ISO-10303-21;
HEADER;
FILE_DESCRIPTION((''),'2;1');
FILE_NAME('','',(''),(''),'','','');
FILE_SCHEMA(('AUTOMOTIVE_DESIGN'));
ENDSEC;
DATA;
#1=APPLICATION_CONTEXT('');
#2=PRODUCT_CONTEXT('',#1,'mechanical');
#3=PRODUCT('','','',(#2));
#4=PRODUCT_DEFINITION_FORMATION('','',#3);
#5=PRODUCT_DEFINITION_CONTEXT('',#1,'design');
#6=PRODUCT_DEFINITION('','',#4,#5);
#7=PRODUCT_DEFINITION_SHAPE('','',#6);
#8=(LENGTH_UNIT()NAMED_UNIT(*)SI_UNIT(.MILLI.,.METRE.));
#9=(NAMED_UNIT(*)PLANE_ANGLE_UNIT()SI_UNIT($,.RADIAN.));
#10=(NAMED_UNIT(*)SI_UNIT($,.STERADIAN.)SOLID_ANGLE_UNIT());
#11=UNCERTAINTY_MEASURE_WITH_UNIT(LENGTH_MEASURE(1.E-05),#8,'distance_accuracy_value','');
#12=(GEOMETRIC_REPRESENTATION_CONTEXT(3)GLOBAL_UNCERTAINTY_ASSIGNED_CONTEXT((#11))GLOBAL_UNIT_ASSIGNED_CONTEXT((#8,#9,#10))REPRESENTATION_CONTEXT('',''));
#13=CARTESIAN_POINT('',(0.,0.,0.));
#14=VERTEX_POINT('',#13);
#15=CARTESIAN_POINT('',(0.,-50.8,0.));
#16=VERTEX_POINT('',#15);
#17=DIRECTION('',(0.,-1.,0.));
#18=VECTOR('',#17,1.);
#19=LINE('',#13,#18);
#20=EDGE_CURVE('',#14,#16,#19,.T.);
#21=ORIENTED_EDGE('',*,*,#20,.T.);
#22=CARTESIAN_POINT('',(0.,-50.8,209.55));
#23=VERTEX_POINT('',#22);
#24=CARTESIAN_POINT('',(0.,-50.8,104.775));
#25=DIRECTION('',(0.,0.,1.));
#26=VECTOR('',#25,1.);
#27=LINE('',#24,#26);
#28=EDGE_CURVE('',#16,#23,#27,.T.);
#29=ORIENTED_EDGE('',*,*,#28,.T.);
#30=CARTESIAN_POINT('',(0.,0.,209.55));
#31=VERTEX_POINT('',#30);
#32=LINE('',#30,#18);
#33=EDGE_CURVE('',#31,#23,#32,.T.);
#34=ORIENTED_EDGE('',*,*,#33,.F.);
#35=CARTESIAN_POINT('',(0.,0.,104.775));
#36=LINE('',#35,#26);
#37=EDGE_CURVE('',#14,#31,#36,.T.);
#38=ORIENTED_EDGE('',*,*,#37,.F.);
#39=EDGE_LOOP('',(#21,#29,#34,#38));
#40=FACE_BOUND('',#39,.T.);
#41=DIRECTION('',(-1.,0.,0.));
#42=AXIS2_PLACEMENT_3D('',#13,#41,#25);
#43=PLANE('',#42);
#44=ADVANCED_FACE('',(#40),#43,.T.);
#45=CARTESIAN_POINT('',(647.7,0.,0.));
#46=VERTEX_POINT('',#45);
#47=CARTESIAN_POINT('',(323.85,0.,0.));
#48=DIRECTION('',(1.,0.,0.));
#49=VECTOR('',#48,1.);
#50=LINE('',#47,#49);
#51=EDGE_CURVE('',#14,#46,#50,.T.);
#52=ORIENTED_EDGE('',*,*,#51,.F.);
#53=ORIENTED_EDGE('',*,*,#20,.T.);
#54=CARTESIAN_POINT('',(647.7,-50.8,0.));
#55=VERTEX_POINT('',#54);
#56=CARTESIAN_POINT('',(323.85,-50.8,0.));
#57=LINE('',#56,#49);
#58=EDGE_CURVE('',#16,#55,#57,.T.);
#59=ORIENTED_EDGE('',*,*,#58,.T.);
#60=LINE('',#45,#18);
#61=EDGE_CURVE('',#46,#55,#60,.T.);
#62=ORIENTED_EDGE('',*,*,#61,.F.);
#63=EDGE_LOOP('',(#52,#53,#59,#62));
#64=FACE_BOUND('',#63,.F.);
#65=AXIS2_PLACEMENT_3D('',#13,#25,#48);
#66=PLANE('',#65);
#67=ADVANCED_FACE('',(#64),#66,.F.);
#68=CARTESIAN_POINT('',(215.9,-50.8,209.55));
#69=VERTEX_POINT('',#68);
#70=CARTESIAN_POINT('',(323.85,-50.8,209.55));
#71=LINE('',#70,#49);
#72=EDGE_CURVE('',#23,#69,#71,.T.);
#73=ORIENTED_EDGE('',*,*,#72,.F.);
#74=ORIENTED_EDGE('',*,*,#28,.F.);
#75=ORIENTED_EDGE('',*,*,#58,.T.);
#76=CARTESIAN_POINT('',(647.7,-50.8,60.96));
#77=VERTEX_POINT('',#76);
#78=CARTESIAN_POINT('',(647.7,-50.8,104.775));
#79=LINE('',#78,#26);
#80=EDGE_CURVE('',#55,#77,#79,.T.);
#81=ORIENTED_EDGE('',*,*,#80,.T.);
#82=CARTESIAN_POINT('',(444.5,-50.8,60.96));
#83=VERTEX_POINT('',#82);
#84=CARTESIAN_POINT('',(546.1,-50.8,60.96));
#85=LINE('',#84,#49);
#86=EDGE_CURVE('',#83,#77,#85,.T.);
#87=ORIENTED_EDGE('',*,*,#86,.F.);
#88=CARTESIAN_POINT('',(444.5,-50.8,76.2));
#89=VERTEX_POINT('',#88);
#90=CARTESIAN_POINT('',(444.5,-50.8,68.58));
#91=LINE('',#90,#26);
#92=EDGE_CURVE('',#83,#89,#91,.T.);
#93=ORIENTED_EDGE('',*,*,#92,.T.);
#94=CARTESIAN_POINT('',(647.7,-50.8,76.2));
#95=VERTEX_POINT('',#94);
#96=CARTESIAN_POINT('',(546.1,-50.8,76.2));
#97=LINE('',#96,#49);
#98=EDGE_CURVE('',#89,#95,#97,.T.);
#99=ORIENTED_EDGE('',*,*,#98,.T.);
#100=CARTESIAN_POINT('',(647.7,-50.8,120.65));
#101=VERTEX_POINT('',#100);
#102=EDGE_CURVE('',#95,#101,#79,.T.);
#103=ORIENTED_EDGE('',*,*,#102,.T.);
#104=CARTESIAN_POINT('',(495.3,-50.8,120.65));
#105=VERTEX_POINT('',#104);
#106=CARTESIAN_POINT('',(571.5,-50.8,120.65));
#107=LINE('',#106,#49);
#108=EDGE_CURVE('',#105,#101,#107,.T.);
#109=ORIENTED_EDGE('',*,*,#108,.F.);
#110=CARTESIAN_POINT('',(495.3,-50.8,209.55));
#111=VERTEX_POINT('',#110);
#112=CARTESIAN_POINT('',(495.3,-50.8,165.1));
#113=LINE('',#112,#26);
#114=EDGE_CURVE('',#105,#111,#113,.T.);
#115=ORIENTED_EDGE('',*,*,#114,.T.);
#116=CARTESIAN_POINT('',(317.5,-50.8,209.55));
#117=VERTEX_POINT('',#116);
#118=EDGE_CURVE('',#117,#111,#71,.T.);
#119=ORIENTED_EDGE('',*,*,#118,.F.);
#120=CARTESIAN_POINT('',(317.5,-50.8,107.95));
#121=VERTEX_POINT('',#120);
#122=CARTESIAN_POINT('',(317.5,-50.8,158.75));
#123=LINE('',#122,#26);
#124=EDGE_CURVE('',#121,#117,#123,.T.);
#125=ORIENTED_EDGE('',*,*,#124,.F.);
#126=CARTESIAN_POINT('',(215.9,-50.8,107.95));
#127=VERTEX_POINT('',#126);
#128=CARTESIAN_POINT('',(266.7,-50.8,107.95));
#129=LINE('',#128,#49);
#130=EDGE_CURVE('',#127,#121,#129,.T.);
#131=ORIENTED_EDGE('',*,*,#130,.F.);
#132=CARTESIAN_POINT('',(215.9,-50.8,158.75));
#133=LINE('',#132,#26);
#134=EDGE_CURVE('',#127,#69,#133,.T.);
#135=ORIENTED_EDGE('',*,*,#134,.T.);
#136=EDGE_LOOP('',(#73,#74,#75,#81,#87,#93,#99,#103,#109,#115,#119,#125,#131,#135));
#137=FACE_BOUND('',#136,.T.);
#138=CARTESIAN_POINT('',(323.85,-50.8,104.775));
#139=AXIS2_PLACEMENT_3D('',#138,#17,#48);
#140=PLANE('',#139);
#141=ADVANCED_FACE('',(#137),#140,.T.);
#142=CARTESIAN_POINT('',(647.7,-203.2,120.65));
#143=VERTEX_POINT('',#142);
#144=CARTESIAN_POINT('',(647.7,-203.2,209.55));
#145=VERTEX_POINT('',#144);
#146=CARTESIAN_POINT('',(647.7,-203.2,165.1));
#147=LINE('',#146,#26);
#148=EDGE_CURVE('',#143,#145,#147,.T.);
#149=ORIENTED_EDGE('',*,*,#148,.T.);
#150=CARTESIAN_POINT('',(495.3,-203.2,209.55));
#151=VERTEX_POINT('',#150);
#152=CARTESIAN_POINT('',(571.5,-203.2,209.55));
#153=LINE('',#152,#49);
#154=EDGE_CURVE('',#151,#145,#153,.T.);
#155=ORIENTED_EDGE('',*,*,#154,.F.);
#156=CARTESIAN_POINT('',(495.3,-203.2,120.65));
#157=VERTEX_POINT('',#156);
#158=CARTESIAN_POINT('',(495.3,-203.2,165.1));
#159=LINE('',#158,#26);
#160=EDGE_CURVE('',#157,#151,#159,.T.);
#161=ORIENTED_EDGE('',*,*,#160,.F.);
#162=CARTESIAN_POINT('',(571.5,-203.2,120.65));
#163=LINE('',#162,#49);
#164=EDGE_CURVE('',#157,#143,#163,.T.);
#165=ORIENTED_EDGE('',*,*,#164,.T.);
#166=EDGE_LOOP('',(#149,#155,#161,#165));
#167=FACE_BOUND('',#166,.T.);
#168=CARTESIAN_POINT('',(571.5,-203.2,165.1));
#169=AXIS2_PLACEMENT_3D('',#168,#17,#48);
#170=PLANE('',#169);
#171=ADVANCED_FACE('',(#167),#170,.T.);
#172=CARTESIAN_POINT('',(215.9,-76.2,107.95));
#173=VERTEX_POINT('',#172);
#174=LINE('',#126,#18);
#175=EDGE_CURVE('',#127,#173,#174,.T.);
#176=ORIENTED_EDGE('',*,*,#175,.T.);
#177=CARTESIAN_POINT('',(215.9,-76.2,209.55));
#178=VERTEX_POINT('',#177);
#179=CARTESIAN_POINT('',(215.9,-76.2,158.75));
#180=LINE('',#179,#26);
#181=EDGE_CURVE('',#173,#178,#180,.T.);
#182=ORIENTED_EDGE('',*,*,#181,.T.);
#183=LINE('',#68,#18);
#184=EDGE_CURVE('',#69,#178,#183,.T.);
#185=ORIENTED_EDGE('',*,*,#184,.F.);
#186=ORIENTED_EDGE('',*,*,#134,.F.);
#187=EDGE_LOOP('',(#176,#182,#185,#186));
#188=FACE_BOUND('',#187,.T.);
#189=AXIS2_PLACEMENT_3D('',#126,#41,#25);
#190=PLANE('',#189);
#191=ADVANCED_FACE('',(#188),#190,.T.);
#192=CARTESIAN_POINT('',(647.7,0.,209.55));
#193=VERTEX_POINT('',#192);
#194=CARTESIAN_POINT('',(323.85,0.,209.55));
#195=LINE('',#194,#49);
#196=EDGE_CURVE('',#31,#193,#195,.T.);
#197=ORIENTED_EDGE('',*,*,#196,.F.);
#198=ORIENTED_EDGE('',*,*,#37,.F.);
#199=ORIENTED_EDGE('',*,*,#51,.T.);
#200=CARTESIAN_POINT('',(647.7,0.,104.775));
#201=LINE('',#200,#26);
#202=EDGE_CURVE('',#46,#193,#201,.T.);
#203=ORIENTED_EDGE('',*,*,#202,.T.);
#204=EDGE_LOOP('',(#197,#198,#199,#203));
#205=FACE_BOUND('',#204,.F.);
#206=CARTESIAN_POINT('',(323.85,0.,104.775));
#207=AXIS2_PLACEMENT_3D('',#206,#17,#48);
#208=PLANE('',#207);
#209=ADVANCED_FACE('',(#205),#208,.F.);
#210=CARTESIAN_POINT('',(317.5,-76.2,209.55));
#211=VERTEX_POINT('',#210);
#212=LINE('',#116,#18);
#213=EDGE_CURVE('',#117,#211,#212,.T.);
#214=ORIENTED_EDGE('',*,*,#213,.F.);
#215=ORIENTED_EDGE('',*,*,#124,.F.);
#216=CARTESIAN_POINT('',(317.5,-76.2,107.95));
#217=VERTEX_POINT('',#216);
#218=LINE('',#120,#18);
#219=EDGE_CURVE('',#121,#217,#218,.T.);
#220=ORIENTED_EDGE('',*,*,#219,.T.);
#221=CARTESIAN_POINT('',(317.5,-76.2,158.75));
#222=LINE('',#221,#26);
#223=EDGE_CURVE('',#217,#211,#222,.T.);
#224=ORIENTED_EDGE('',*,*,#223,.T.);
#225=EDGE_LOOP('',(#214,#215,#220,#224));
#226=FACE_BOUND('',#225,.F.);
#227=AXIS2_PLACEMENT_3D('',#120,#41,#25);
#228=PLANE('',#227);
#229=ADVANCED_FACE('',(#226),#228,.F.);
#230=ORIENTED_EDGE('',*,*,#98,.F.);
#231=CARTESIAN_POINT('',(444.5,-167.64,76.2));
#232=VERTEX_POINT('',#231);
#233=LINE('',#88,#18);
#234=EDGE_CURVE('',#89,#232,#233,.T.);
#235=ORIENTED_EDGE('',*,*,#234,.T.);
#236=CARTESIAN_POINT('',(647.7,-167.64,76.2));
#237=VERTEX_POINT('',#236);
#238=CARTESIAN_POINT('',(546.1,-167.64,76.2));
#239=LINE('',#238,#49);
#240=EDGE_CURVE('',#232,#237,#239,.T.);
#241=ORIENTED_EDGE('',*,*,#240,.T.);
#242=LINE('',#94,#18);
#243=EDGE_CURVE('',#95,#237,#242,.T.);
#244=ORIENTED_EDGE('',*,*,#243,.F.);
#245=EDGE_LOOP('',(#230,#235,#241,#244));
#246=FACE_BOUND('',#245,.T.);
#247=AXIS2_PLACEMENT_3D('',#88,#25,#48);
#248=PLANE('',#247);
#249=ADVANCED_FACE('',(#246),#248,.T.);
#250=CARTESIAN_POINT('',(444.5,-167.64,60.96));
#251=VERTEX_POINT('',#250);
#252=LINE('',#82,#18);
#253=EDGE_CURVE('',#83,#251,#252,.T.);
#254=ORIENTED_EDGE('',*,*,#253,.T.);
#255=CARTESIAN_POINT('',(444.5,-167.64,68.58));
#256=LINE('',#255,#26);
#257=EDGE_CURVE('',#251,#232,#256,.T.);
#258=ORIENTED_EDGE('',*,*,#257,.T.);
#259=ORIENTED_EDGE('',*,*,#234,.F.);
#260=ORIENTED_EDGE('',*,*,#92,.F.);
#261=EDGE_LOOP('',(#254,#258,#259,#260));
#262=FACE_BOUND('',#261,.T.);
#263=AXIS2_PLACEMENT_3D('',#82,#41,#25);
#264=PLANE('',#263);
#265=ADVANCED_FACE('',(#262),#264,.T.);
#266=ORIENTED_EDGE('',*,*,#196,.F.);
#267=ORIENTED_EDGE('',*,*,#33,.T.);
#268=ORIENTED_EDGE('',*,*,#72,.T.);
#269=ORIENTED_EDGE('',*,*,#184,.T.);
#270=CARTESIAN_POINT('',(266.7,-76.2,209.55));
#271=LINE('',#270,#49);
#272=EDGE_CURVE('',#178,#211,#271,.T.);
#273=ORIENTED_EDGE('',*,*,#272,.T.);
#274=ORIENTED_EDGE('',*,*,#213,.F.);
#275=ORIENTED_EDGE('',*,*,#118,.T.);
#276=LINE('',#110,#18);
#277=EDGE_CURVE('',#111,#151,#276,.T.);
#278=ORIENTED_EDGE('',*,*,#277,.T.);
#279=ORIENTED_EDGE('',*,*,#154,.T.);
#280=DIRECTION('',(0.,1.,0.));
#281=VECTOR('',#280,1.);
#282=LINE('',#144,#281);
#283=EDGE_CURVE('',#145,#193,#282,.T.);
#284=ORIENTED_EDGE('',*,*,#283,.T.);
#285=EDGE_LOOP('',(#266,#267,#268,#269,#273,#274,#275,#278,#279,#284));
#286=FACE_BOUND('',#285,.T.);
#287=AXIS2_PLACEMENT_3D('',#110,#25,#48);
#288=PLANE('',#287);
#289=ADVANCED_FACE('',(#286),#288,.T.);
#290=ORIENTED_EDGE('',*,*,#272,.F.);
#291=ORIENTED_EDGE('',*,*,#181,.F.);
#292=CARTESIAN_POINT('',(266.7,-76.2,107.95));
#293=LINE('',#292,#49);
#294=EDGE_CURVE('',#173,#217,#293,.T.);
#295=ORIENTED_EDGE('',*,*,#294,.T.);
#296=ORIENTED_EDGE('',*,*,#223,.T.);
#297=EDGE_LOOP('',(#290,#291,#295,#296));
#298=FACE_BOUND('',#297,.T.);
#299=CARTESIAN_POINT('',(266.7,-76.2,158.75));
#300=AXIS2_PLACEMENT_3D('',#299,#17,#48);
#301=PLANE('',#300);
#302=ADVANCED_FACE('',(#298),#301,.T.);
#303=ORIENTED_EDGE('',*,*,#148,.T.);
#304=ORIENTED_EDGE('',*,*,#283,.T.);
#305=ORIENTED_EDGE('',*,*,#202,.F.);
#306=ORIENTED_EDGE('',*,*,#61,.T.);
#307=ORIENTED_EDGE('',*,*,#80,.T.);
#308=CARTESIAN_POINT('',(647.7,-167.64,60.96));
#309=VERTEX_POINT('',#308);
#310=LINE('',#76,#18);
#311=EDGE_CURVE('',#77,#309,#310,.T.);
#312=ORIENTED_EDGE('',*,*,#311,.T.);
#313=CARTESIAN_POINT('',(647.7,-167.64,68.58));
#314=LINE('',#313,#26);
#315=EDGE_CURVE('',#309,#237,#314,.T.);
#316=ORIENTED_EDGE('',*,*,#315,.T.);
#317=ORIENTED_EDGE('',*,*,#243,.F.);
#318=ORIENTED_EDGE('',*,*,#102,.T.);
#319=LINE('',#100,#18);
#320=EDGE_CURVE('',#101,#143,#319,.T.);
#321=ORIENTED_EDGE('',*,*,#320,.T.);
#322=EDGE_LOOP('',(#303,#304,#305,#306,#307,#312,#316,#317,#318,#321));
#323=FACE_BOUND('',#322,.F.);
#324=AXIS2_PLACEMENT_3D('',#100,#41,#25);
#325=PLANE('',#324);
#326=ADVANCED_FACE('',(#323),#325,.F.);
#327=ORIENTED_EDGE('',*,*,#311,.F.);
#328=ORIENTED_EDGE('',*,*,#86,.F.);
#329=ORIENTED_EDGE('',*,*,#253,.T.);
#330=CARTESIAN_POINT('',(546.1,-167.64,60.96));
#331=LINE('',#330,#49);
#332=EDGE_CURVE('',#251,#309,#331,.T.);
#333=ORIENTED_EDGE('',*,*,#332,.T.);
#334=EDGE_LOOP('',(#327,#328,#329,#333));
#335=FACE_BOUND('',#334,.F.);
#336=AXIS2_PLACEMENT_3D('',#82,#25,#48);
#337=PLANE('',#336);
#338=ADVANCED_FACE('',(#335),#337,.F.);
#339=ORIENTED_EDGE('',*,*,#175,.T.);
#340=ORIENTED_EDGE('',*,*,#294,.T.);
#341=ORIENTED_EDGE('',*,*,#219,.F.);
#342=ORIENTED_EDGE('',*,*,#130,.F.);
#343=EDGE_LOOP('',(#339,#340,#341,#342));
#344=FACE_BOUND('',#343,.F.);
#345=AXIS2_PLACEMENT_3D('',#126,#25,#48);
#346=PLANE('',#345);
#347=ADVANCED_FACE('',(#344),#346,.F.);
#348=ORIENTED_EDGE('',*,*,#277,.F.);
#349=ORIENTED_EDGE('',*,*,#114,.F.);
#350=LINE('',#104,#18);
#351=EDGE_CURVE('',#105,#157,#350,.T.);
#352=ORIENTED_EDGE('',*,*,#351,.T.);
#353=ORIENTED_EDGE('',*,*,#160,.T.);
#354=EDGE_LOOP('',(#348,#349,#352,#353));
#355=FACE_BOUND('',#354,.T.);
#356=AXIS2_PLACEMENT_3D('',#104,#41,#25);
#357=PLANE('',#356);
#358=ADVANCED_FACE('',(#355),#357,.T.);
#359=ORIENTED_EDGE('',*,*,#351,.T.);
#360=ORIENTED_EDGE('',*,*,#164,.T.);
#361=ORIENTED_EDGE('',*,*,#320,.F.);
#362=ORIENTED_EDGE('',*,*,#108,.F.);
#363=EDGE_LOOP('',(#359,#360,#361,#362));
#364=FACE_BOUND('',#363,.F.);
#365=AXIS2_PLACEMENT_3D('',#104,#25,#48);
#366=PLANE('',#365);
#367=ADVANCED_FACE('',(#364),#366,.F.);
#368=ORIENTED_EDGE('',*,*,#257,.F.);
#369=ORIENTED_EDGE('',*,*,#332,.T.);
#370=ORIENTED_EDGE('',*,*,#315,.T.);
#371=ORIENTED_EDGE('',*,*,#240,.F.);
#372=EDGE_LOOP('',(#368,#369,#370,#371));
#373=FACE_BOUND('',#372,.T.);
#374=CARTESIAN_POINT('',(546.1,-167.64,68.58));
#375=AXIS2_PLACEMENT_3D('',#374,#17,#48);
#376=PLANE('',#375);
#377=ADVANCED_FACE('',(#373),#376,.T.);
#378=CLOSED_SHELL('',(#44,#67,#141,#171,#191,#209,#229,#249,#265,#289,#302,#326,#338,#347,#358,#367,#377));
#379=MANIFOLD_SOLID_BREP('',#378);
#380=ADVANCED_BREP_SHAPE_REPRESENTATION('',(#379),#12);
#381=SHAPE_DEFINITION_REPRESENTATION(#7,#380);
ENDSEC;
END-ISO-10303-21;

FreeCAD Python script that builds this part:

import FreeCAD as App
import Part
import Sketcher
Q = App.Units.Quantity


def add_polygon(sketch, points):
    """Adds a closed chain of lines whose ends are joined by coincident constraints."""
    first, n = sketch.GeometryCount, len(points)
    for a, b in zip(points, points[1:] + points[:1]):
        sketch.addGeometry(Part.LineSegment(App.Vector(*a, 0), App.Vector(*b, 0)), False)
    for i in range(n):
        sketch.addConstraint(Sketcher.Constraint("Coincident", first + i, 2, first + (i + 1) % n, 1))

doc = App.newDocument("Part")
body = doc.addObject("PartDesign::Body", "Body")

sketch1 = body.newObject("Sketcher::SketchObject", "Sketch")
sketch1.AttachmentSupport = (doc.getObject("XZ_Plane"), [""])
sketch1.MapMode = "FlatFace"
add_polygon(sketch1, [(0, 210), (0, 0), (648, 0), (648, 210)])
sketch1.addConstraint([
    Sketcher.Constraint("Vertical", 0),
    Sketcher.Constraint("Horizontal", 1),
    Sketcher.Constraint("Vertical", 2),
    Sketcher.Constraint("Horizontal", 3),
    Sketcher.Constraint("Coincident", 0, 2, -1, 1),
    Sketcher.Constraint("DistanceX", 1, 1, 1, 2, Q("25.5 in")),
    Sketcher.Constraint("DistanceY", 0, 2, 0, 1, Q("8.25 in")),
])
pad1 = body.newObject("PartDesign::Pad", "Pad")
pad1.Profile = sketch1
pad1.Length = Q("2 in")

sketch2 = body.newObject("Sketcher::SketchObject", "Sketch001")
sketch2.AttachmentSupport = (doc.getObject("XZ_Plane"), [""])
sketch2.MapMode = "FlatFace"
sketch2.AttachmentOffset = App.Placement(App.Vector(0, 0, 2 * 25.4), App.Rotation())
add_polygon(sketch2, [(216, 210), (216, 108), (318, 108), (318, 210)])
sketch2.addConstraint([
    Sketcher.Constraint("Vertical", 0),
    Sketcher.Constraint("Horizontal", 1),
    Sketcher.Constraint("Vertical", 2),
    Sketcher.Constraint("Horizontal", 3),
    Sketcher.Constraint("Equal", 3, 0),
    Sketcher.Constraint("DistanceX", 1, 1, 1, 2, Q("4 in")),
    Sketcher.Constraint("DistanceX", -1, 1, 0, 2, Q("8.5 in")),
    Sketcher.Constraint("DistanceY", -1, 1, 0, 2, Q("4.25 in")),
])
pad2 = body.newObject("PartDesign::Pad", "Pad001")
pad2.Profile = sketch2
pad2.Length = Q("1 in")

sketch3 = body.newObject("Sketcher::SketchObject", "Sketch002")
sketch3.AttachmentSupport = (doc.getObject("XZ_Plane"), [""])
sketch3.MapMode = "FlatFace"
sketch3.AttachmentOffset = App.Placement(App.Vector(0, 0, 2 * 25.4), App.Rotation())
add_polygon(sketch3, [(444, 76), (444, 61), (648, 61), (648, 76)])
sketch3.addConstraint([
    Sketcher.Constraint("Vertical", 0),
    Sketcher.Constraint("Horizontal", 1),
    Sketcher.Constraint("Vertical", 2),
    Sketcher.Constraint("Horizontal", 3),
    Sketcher.Constraint("DistanceX", 1, 1, 1, 2, Q("8 in")),
    Sketcher.Constraint("DistanceY", 0, 2, 0, 1, Q("0.6 in")),
    Sketcher.Constraint("DistanceY", -1, 1, 2, 2, Q("3 in")),
    Sketcher.Constraint("DistanceX", -1, 1, 0, 2, Q("17.5 in")),
])
pad3 = body.newObject("PartDesign::Pad", "Pad002")
pad3.Profile = sketch3
pad3.Length = Q("4.6 in")

sketch4 = body.newObject("Sketcher::SketchObject", "Sketch003")
sketch4.AttachmentSupport = (doc.getObject("XZ_Plane"), [""])
sketch4.MapMode = "FlatFace"
sketch4.AttachmentOffset = App.Placement(App.Vector(0, 0, 2 * 25.4), App.Rotation())
add_polygon(sketch4, [(495, 210), (495, 121), (648, 121), (648, 210)])
sketch4.addConstraint([
    Sketcher.Constraint("Vertical", 0),
    Sketcher.Constraint("Horizontal", 1),
    Sketcher.Constraint("Vertical", 2),
    Sketcher.Constraint("Horizontal", 3),
    Sketcher.Constraint("DistanceX", 1, 1, 1, 2, Q("6 in")),
    Sketcher.Constraint("DistanceY", 0, 2, 0, 1, Q("3.5 in")),
    Sketcher.Constraint("DistanceX", -1, 1, 0, 2, Q("19.5 in")),
    Sketcher.Constraint("DistanceY", -1, 1, 0, 2, Q("4.75 in")),
])
pad4 = body.newObject("PartDesign::Pad", "Pad003")
pad4.Profile = sketch4
pad4.Length = Q("6 in")

doc.recompute()
